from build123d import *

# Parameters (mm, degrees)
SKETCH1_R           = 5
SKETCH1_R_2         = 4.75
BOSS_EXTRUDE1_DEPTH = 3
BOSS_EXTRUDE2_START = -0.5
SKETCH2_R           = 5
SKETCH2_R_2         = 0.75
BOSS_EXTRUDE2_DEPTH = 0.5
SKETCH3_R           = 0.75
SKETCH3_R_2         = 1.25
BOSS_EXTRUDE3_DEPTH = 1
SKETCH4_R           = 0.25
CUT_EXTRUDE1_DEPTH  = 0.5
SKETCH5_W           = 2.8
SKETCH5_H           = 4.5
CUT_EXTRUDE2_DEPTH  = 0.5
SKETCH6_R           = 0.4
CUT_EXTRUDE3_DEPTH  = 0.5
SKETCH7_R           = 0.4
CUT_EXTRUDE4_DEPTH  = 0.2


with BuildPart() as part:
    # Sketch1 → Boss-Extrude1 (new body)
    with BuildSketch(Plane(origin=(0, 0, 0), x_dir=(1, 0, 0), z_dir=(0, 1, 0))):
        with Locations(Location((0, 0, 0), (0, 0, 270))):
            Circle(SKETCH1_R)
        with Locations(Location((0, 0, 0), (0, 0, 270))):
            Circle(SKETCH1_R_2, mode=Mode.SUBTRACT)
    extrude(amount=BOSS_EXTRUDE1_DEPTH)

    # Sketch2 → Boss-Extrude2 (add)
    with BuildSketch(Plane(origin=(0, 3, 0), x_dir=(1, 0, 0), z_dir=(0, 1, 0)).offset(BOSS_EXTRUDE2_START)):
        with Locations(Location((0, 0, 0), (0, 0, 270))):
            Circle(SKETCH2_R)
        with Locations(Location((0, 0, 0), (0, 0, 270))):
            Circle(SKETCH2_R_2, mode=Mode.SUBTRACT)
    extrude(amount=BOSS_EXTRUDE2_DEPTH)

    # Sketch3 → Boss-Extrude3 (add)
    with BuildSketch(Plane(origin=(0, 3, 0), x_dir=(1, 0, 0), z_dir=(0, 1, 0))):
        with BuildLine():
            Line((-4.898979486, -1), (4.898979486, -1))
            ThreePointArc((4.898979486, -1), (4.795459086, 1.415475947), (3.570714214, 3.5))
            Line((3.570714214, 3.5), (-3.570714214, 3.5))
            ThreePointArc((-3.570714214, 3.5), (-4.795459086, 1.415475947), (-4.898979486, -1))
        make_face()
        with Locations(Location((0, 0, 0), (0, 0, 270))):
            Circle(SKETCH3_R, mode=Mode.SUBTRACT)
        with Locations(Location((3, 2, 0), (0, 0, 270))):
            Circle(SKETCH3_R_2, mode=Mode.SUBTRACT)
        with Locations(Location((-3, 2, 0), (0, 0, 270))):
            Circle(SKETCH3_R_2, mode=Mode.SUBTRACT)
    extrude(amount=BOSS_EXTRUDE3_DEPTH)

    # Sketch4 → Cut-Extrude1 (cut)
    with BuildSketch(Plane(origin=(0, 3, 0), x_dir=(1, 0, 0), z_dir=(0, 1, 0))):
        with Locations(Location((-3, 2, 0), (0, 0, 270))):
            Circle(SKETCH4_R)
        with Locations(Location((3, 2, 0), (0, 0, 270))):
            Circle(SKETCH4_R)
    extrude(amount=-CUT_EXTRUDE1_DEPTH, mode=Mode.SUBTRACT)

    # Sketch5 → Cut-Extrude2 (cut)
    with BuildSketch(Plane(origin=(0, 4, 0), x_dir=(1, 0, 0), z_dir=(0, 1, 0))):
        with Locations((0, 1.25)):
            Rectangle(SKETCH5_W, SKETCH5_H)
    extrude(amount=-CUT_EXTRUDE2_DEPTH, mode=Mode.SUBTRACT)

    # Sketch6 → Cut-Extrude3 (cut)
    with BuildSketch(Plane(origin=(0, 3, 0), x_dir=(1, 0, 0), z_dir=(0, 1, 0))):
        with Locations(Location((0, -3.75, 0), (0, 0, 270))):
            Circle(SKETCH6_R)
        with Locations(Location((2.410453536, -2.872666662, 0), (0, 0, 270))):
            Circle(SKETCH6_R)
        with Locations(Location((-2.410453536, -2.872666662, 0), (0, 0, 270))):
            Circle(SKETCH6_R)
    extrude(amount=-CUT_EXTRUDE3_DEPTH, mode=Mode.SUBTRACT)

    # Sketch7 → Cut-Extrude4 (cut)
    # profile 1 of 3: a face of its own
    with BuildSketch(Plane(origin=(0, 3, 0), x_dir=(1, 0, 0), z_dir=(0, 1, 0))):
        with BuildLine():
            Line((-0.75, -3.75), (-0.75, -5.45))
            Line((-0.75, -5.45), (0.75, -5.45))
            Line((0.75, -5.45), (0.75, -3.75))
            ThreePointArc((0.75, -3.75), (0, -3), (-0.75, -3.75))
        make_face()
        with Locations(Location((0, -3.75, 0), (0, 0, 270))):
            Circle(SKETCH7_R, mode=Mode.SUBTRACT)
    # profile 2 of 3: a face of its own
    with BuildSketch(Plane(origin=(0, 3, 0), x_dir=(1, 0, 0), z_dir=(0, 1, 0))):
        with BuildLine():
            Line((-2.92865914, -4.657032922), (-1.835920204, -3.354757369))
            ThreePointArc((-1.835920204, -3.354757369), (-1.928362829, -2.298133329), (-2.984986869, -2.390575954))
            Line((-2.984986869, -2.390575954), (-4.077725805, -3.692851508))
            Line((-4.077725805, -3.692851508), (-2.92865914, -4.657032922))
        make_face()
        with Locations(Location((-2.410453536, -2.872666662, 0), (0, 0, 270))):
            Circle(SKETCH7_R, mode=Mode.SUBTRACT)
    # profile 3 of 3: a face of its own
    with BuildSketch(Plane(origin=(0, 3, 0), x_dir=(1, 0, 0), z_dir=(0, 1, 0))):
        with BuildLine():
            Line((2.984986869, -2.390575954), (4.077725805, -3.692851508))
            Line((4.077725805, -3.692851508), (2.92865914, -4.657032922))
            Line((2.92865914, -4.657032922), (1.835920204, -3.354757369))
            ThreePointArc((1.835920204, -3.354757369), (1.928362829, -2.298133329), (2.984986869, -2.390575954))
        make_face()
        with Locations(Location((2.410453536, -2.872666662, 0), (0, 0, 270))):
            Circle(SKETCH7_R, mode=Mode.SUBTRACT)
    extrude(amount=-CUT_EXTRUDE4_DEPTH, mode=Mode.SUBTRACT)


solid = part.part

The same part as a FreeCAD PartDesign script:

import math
import FreeCAD as App
import Part
import Sketcher
Q = App.Units.Quantity


def add_polygon(sketch, points):
    """Adds a closed chain of lines whose ends are joined by coincident constraints."""
    first, n = sketch.GeometryCount, len(points)
    for a, b in zip(points, points[1:] + points[:1]):
        sketch.addGeometry(Part.LineSegment(App.Vector(*a, 0), App.Vector(*b, 0)), False)
    for i in range(n):
        sketch.addConstraint(Sketcher.Constraint("Coincident", first + i, 2, first + (i + 1) % n, 1))

doc = App.newDocument("Part")
body = doc.addObject("PartDesign::Body", "Body")

# Sketch on XZ plane
sketch1 = body.newObject("Sketcher::SketchObject", "Sketch")
sketch1.AttachmentSupport = (doc.getObject("XZ_Plane"), [""])
sketch1.MapMode = "FlatFace"
sketch1.addGeometry(Part.Circle(App.Vector(0, 0, 0), App.Vector(0, 0, 1), 5), False)
sketch1.addGeometry(Part.Circle(App.Vector(0, 0, 0), App.Vector(0, 0, 1), 4.8), False)
sketch1.addConstraint(Sketcher.Constraint("Coincident", 0, 3, -1, 1))
sketch1.addConstraint(Sketcher.Constraint("Coincident", 1, 3, -1, 1))
sketch1.addConstraint(Sketcher.Constraint("Diameter", 0, 10.0))
sketch1.addConstraint(Sketcher.Constraint("Diameter", 1, 9.5))
pad1 = body.newObject("PartDesign::Pad", "Pad")
pad1.Profile = sketch1
pad1.Length = 3
pad1.Reversed = True

# Sketch on XZ plane
sketch2 = body.newObject("Sketcher::SketchObject", "Sketch001")
sketch2.AttachmentSupport = (doc.getObject("XZ_Plane"), [""])
sketch2.MapMode = "FlatFace"
sketch2.AttachmentOffset = App.Placement(App.Vector(0, 0, -2.5), App.Rotation())
sketch2.addGeometry(Part.Circle(App.Vector(0, 0, 0), App.Vector(0, 0, 1), 5), False)
sketch2.addGeometry(Part.Circle(App.Vector(0, 0, 0), App.Vector(0, 0, 1), 0.8), False)
sketch2.addConstraint(Sketcher.Constraint("Coincident", 0, 3, -1, 1))
sketch2.addConstraint(Sketcher.Constraint("Coincident", 1, 3, -1, 1))
sketch2.addConstraint(Sketcher.Constraint("Diameter", 0, 10.0))
sketch2.addConstraint(Sketcher.Constraint("Diameter", 1, 1.5))
pad2 = body.newObject("PartDesign::Pad", "Pad001")
pad2.Profile = sketch2
pad2.Length = 0.5
pad2.Reversed = True

# Sketch on XZ plane
sketch3 = body.newObject("Sketcher::SketchObject", "Sketch002")
sketch3.AttachmentSupport = (doc.getObject("XZ_Plane"), [""])
sketch3.MapMode = "FlatFace"
sketch3.AttachmentOffset = App.Placement(App.Vector(0, 0, -3), App.Rotation())
sketch3.addGeometry(Part.LineSegment(App.Vector(-4.9, 1, 0), App.Vector(4.9, 1, 0)), False)
sketch3.addGeometry(Part.ArcOfCircle(Part.Circle(App.Vector(0, 0, 0), App.Vector(0, 0, 1), 5), math.radians(-44), math.radians(12)), False)
sketch3.addGeometry(Part.LineSegment(App.Vector(3.6, -3.5, 0), App.Vector(-3.6, -3.5, 0)), False)
sketch3.addGeometry(Part.ArcOfCircle(Part.Circle(App.Vector(0, 0, 0), App.Vector(0, 0, 1), 5), math.radians(168), math.radians(224)), False)
sketch3.addGeometry(Part.Circle(App.Vector(0, 0, 0), App.Vector(0, 0, 1), 0.8), False)
sketch3.addGeometry(Part.Circle(App.Vector(-3, -2, 0), App.Vector(0, 0, 1), 1.2), False)
sketch3.addGeometry(Part.Circle(App.Vector(3, -2, 0), App.Vector(0, 0, 1), 1.2), False)
sketch3.addConstraint(Sketcher.Constraint("Coincident", 0, 2, 1, 2))
sketch3.addConstraint(Sketcher.Constraint("Coincident", 1, 1, 2, 1))
sketch3.addConstraint(Sketcher.Constraint("Coincident", 2, 2, 3, 2))
sketch3.addConstraint(Sketcher.Constraint("Coincident", 3, 1, 0, 1))
sketch3.addConstraint(Sketcher.Constraint("Horizontal", 0))
sketch3.addConstraint(Sketcher.Constraint("Horizontal", 2))
sketch3.addConstraint(Sketcher.Constraint("Coincident", 1, 3, -1, 1))
sketch3.addConstraint(Sketcher.Constraint("Coincident", 3, 3, -1, 1))
sketch3.addConstraint(Sketcher.Constraint("Coincident", 4, 3, -1, 1))
sketch3.addConstraint(Sketcher.Constraint("Equal", 1, 3))
sketch3.addConstraint(Sketcher.Constraint("Equal", 5, 6))
sketch3.addConstraint(Sketcher.Constraint("Symmetric", 5, 3, 6, 3, -2))
sketch3.addConstraint(Sketcher.Constraint("Radius", 1, 5.0))
sketch3.addConstraint(Sketcher.Constraint("Diameter", 4, 1.5))
sketch3.addConstraint(Sketcher.Constraint("Diameter", 5, 2.5))
sketch3.addConstraint(Sketcher.Constraint("DistanceX", 5, 3, -1, 1, 3.0))
sketch3.addConstraint(Sketcher.Constraint("DistanceY", 5, 3, -1, 1, 2.0))
sketch3.addConstraint(Sketcher.Constraint("DistanceY", -1, 1, 0, 2, 1.0))
sketch3.addConstraint(Sketcher.Constraint("DistanceY", 1, 1, -1, 1, 3.5))
pad3 = body.newObject("PartDesign::Pad", "Pad002")
pad3.Profile = sketch3
pad3.Length = 1
pad3.Reversed = True

# Sketch on XZ plane
sketch4 = body.newObject("Sketcher::SketchObject", "Sketch003")
sketch4.AttachmentSupport = (doc.getObject("XZ_Plane"), [""])
sketch4.MapMode = "FlatFace"
sketch4.AttachmentOffset = App.Placement(App.Vector(0, 0, -3), App.Rotation())
sketch4.addGeometry(Part.Circle(App.Vector(-3, -2, 0), App.Vector(0, 0, 1), 0.25), False)
sketch4.addGeometry(Part.Circle(App.Vector(3, -2, 0), App.Vector(0, 0, 1), 0.25), False)
sketch4.addConstraint(Sketcher.Constraint("Equal", 0, 1))
sketch4.addConstraint(Sketcher.Constraint("Symmetric", 0, 3, 1, 3, -2))
sketch4.addConstraint(Sketcher.Constraint("Diameter", 0, 0.5))
sketch4.addConstraint(Sketcher.Constraint("DistanceX", 0, 3, -1, 1, 3.0))
sketch4.addConstraint(Sketcher.Constraint("DistanceY", 0, 3, -1, 1, 2.0))
pocket1 = body.newObject("PartDesign::Pocket", "Pocket")
pocket1.Profile = sketch4
pocket1.Length = 0.5
pocket1.Reversed = True

# Sketch on XZ plane
sketch5 = body.newObject("Sketcher::SketchObject", "Sketch004")
sketch5.AttachmentSupport = (doc.getObject("XZ_Plane"), [""])
sketch5.MapMode = "FlatFace"
sketch5.AttachmentOffset = App.Placement(App.Vector(0, 0, -4), App.Rotation())
add_polygon(sketch5, [(-1.4, -3.5), (-1.4, 1), (1.4, 1), (1.4, -3.5)])  # lines 0-3
sketch5.addConstraint(Sketcher.Constraint("Vertical", 0))
sketch5.addConstraint(Sketcher.Constraint("Horizontal", 1))
sketch5.addConstraint(Sketcher.Constraint("Vertical", 2))
sketch5.addConstraint(Sketcher.Constraint("Horizontal", 3))
sketch5.addConstraint(Sketcher.Constraint("DistanceX", 1, 1, 1, 2, 2.8))
sketch5.addConstraint(Sketcher.Constraint("DistanceY", 0, 1, 0, 2, 4.5))
sketch5.addConstraint(Sketcher.Constraint("DistanceY", -1, 1, 0, 2, 1.0))
sketch5.addConstraint(Sketcher.Constraint("DistanceX", 0, 2, -1, 1, 1.4))
pocket2 = body.newObject("PartDesign::Pocket", "Pocket001")
pocket2.Profile = sketch5
pocket2.Length = 0.5
pocket2.Reversed = True

# Sketch on XZ plane
sketch6 = body.newObject("Sketcher::SketchObject", "Sketch005")
sketch6.AttachmentSupport = (doc.getObject("XZ_Plane"), [""])
sketch6.MapMode = "FlatFace"
sketch6.AttachmentOffset = App.Placement(App.Vector(0, 0, -3), App.Rotation())
sketch6.addGeometry(Part.Circle(App.Vector(0, 3.75, 0), App.Vector(0, 0, 1), 0.4), False)
sketch6.addGeometry(Part.Circle(App.Vector(2.41, 2.87, 0), App.Vector(0, 0, 1), 0.4), False)
sketch6.addGeometry(Part.Circle(App.Vector(-2.41, 2.87, 0), App.Vector(0, 0, 1), 0.4), False)
sketch6.addConstraint(Sketcher.Constraint("Equal", 0, 1))
sketch6.addConstraint(Sketcher.Constraint("Equal", 1, 2))
sketch6.addConstraint(Sketcher.Constraint("Symmetric", 1, 3, 2, 3, -2))
sketch6.addConstraint(Sketcher.Constraint("PointOnObject", 0, 3, -2))
sketch6.addConstraint(Sketcher.Constraint("Diameter", 0, 0.8))
sketch6.addConstraint(Sketcher.Constraint("DistanceY", -1, 1, 0, 3, 3.75))
sketch6.addConstraint(Sketcher.Constraint("DistanceX", -1, 1, 1, 3, 2.410454))
sketch6.addConstraint(Sketcher.Constraint("DistanceY", -1, 1, 1, 3, 2.872667))
pocket3 = body.newObject("PartDesign::Pocket", "Pocket002")
pocket3.Profile = sketch6
pocket3.Length = 0.5
pocket3.Reversed = True

# Sketch on XZ plane
sketch7 = body.newObject("Sketcher::SketchObject", "Sketch006")
sketch7.AttachmentSupport = (doc.getObject("XZ_Plane"), [""])
sketch7.MapMode = "FlatFace"
sketch7.AttachmentOffset = App.Placement(App.Vector(0, 0, -3), App.Rotation())
sketch7.addGeometry(Part.LineSegment(App.Vector(-0.75, 3.75, 0), App.Vector(-0.75, 5.45, 0)), False)
sketch7.addGeometry(Part.LineSegment(App.Vector(-0.75, 5.45, 0), App.Vector(0.75, 5.45, 0)), False)
sketch7.addGeometry(Part.LineSegment(App.Vector(0.75, 5.45, 0), App.Vector(0.75, 3.75, 0)), False)
sketch7.addGeometry(Part.ArcOfCircle(Part.Circle(App.Vector(0, 3.75, 0), App.Vector(0, 0, 1), 0.75), math.radians(180), math.radians(360)), False)
sketch7.addGeometry(Part.Circle(App.Vector(0, 3.75, 0), App.Vector(0, 0, 1), 0.4), False)
sketch7.addGeometry(Part.LineSegment(App.Vector(-2.93, 4.66, 0), App.Vector(-1.84, 3.35, 0)), False)
sketch7.addGeometry(Part.ArcOfCircle(Part.Circle(App.Vector(-2.41, 2.87, 0), App.Vector(0, 0, 1), 0.75), math.radians(-140), math.radians(40)), False)
sketch7.addGeometry(Part.LineSegment(App.Vector(-2.98, 2.39, 0), App.Vector(-4.08, 3.69, 0)), False)
sketch7.addGeometry(Part.LineSegment(App.Vector(-4.08, 3.69, 0), App.Vector(-2.93, 4.66, 0)), False)
sketch7.addGeometry(Part.Circle(App.Vector(-2.41, 2.87, 0), App.Vector(0, 0, 1), 0.4), False)
sketch7.addGeometry(Part.LineSegment(App.Vector(4.08, 3.69, 0), App.Vector(2.98, 2.39, 0)), False)
sketch7.addGeometry(Part.ArcOfCircle(Part.Circle(App.Vector(2.41, 2.87, 0), App.Vector(0, 0, 1), 0.75), math.radians(140), math.radians(320)), False)
sketch7.addGeometry(Part.LineSegment(App.Vector(1.84, 3.35, 0), App.Vector(2.93, 4.66, 0)), False)
sketch7.addGeometry(Part.LineSegment(App.Vector(2.93, 4.66, 0), App.Vector(4.08, 3.69, 0)), False)
sketch7.addGeometry(Part.Circle(App.Vector(2.41, 2.87, 0), App.Vector(0, 0, 1), 0.4), False)
sketch7.addConstraint(Sketcher.Constraint("Coincident", 0, 2, 1, 1))
sketch7.addConstraint(Sketcher.Constraint("Coincident", 1, 2, 2, 1))
sketch7.addConstraint(Sketcher.Constraint("Tangent", 2, 2, 3, 2))
sketch7.addConstraint(Sketcher.Constraint("Tangent", 3, 1, 0, 1))
sketch7.addConstraint(Sketcher.Constraint("Tangent", 5, 2, 6, 2))
sketch7.addConstraint(Sketcher.Constraint("Tangent", 6, 1, 7, 1))
sketch7.addConstraint(Sketcher.Constraint("Coincident", 7, 2, 8, 1))
sketch7.addConstraint(Sketcher.Constraint("Coincident", 8, 2, 5, 1))
sketch7.addConstraint(Sketcher.Constraint("Tangent", 10, 2, 11, 2))
sketch7.addConstraint(Sketcher.Constraint("Tangent", 11, 1, 12, 1))
sketch7.addConstraint(Sketcher.Constraint("Coincident", 12, 2, 13, 1))
sketch7.addConstraint(Sketcher.Constraint("Coincident", 13, 2, 10, 1))
sketch7.addConstraint(Sketcher.Constraint("Vertical", 0))
sketch7.addConstraint(Sketcher.Constraint("Horizontal", 1))
sketch7.addConstraint(Sketcher.Constraint("Vertical", 2))
sketch7.addConstraint(Sketcher.Constraint("Coincident", 4, 3, 3, 3))
sketch7.addConstraint(Sketcher.Constraint("Coincident", 9, 3, 6, 3))
sketch7.addConstraint(Sketcher.Constraint("Coincident", 14, 3, 11, 3))
sketch7.addConstraint(Sketcher.Constraint("Equal", 3, 6))
sketch7.addConstraint(Sketcher.Constraint("Equal", 4, 9))
sketch7.addConstraint(Sketcher.Constraint("Equal", 6, 11))
sketch7.addConstraint(Sketcher.Constraint("Equal", 9, 14))
sketch7.addConstraint(Sketcher.Constraint("Symmetric", 6, 3, 11, 3, -2))
sketch7.addConstraint(Sketcher.Constraint("Symmetric", 8, 2, 12, 2, -2))
sketch7.addConstraint(Sketcher.Constraint("Symmetric", 7, 2, 13, 2, -2))
sketch7.addConstraint(Sketcher.Constraint("PointOnObject", 3, 3, -2))
sketch7.addConstraint(Sketcher.Constraint("Parallel", 5, 7))
sketch7.addConstraint(Sketcher.Constraint("Perpendicular", 7, 8))
sketch7.addConstraint(Sketcher.Constraint("Diameter", 4, 0.8))
sketch7.addConstraint(Sketcher.Constraint("Angle", 5, Q("-50 deg")))
sketch7.addConstraint(Sketcher.Constraint("Radius", 3, 0.75))
sketch7.addConstraint(Sketcher.Constraint("DistanceY", 0, 1, 0, 2, 1.7))
sketch7.addConstraint(Sketcher.Constraint("Distance", 5, 1.7))
sketch7.addConstraint(Sketcher.Constraint("DistanceY", -1, 1, 3, 3, 3.75))
sketch7.addConstraint(Sketcher.Constraint("DistanceX", 5, 2, -1, 1, 1.83592))
sketch7.addConstraint(Sketcher.Constraint("DistanceY", -1, 1, 7, 2, 3.692852))
pocket4 = body.newObject("PartDesign::Pocket", "Pocket003")
pocket4.Profile = sketch7
pocket4.Length = 0.2
pocket4.Reversed = True

doc.recompute()
